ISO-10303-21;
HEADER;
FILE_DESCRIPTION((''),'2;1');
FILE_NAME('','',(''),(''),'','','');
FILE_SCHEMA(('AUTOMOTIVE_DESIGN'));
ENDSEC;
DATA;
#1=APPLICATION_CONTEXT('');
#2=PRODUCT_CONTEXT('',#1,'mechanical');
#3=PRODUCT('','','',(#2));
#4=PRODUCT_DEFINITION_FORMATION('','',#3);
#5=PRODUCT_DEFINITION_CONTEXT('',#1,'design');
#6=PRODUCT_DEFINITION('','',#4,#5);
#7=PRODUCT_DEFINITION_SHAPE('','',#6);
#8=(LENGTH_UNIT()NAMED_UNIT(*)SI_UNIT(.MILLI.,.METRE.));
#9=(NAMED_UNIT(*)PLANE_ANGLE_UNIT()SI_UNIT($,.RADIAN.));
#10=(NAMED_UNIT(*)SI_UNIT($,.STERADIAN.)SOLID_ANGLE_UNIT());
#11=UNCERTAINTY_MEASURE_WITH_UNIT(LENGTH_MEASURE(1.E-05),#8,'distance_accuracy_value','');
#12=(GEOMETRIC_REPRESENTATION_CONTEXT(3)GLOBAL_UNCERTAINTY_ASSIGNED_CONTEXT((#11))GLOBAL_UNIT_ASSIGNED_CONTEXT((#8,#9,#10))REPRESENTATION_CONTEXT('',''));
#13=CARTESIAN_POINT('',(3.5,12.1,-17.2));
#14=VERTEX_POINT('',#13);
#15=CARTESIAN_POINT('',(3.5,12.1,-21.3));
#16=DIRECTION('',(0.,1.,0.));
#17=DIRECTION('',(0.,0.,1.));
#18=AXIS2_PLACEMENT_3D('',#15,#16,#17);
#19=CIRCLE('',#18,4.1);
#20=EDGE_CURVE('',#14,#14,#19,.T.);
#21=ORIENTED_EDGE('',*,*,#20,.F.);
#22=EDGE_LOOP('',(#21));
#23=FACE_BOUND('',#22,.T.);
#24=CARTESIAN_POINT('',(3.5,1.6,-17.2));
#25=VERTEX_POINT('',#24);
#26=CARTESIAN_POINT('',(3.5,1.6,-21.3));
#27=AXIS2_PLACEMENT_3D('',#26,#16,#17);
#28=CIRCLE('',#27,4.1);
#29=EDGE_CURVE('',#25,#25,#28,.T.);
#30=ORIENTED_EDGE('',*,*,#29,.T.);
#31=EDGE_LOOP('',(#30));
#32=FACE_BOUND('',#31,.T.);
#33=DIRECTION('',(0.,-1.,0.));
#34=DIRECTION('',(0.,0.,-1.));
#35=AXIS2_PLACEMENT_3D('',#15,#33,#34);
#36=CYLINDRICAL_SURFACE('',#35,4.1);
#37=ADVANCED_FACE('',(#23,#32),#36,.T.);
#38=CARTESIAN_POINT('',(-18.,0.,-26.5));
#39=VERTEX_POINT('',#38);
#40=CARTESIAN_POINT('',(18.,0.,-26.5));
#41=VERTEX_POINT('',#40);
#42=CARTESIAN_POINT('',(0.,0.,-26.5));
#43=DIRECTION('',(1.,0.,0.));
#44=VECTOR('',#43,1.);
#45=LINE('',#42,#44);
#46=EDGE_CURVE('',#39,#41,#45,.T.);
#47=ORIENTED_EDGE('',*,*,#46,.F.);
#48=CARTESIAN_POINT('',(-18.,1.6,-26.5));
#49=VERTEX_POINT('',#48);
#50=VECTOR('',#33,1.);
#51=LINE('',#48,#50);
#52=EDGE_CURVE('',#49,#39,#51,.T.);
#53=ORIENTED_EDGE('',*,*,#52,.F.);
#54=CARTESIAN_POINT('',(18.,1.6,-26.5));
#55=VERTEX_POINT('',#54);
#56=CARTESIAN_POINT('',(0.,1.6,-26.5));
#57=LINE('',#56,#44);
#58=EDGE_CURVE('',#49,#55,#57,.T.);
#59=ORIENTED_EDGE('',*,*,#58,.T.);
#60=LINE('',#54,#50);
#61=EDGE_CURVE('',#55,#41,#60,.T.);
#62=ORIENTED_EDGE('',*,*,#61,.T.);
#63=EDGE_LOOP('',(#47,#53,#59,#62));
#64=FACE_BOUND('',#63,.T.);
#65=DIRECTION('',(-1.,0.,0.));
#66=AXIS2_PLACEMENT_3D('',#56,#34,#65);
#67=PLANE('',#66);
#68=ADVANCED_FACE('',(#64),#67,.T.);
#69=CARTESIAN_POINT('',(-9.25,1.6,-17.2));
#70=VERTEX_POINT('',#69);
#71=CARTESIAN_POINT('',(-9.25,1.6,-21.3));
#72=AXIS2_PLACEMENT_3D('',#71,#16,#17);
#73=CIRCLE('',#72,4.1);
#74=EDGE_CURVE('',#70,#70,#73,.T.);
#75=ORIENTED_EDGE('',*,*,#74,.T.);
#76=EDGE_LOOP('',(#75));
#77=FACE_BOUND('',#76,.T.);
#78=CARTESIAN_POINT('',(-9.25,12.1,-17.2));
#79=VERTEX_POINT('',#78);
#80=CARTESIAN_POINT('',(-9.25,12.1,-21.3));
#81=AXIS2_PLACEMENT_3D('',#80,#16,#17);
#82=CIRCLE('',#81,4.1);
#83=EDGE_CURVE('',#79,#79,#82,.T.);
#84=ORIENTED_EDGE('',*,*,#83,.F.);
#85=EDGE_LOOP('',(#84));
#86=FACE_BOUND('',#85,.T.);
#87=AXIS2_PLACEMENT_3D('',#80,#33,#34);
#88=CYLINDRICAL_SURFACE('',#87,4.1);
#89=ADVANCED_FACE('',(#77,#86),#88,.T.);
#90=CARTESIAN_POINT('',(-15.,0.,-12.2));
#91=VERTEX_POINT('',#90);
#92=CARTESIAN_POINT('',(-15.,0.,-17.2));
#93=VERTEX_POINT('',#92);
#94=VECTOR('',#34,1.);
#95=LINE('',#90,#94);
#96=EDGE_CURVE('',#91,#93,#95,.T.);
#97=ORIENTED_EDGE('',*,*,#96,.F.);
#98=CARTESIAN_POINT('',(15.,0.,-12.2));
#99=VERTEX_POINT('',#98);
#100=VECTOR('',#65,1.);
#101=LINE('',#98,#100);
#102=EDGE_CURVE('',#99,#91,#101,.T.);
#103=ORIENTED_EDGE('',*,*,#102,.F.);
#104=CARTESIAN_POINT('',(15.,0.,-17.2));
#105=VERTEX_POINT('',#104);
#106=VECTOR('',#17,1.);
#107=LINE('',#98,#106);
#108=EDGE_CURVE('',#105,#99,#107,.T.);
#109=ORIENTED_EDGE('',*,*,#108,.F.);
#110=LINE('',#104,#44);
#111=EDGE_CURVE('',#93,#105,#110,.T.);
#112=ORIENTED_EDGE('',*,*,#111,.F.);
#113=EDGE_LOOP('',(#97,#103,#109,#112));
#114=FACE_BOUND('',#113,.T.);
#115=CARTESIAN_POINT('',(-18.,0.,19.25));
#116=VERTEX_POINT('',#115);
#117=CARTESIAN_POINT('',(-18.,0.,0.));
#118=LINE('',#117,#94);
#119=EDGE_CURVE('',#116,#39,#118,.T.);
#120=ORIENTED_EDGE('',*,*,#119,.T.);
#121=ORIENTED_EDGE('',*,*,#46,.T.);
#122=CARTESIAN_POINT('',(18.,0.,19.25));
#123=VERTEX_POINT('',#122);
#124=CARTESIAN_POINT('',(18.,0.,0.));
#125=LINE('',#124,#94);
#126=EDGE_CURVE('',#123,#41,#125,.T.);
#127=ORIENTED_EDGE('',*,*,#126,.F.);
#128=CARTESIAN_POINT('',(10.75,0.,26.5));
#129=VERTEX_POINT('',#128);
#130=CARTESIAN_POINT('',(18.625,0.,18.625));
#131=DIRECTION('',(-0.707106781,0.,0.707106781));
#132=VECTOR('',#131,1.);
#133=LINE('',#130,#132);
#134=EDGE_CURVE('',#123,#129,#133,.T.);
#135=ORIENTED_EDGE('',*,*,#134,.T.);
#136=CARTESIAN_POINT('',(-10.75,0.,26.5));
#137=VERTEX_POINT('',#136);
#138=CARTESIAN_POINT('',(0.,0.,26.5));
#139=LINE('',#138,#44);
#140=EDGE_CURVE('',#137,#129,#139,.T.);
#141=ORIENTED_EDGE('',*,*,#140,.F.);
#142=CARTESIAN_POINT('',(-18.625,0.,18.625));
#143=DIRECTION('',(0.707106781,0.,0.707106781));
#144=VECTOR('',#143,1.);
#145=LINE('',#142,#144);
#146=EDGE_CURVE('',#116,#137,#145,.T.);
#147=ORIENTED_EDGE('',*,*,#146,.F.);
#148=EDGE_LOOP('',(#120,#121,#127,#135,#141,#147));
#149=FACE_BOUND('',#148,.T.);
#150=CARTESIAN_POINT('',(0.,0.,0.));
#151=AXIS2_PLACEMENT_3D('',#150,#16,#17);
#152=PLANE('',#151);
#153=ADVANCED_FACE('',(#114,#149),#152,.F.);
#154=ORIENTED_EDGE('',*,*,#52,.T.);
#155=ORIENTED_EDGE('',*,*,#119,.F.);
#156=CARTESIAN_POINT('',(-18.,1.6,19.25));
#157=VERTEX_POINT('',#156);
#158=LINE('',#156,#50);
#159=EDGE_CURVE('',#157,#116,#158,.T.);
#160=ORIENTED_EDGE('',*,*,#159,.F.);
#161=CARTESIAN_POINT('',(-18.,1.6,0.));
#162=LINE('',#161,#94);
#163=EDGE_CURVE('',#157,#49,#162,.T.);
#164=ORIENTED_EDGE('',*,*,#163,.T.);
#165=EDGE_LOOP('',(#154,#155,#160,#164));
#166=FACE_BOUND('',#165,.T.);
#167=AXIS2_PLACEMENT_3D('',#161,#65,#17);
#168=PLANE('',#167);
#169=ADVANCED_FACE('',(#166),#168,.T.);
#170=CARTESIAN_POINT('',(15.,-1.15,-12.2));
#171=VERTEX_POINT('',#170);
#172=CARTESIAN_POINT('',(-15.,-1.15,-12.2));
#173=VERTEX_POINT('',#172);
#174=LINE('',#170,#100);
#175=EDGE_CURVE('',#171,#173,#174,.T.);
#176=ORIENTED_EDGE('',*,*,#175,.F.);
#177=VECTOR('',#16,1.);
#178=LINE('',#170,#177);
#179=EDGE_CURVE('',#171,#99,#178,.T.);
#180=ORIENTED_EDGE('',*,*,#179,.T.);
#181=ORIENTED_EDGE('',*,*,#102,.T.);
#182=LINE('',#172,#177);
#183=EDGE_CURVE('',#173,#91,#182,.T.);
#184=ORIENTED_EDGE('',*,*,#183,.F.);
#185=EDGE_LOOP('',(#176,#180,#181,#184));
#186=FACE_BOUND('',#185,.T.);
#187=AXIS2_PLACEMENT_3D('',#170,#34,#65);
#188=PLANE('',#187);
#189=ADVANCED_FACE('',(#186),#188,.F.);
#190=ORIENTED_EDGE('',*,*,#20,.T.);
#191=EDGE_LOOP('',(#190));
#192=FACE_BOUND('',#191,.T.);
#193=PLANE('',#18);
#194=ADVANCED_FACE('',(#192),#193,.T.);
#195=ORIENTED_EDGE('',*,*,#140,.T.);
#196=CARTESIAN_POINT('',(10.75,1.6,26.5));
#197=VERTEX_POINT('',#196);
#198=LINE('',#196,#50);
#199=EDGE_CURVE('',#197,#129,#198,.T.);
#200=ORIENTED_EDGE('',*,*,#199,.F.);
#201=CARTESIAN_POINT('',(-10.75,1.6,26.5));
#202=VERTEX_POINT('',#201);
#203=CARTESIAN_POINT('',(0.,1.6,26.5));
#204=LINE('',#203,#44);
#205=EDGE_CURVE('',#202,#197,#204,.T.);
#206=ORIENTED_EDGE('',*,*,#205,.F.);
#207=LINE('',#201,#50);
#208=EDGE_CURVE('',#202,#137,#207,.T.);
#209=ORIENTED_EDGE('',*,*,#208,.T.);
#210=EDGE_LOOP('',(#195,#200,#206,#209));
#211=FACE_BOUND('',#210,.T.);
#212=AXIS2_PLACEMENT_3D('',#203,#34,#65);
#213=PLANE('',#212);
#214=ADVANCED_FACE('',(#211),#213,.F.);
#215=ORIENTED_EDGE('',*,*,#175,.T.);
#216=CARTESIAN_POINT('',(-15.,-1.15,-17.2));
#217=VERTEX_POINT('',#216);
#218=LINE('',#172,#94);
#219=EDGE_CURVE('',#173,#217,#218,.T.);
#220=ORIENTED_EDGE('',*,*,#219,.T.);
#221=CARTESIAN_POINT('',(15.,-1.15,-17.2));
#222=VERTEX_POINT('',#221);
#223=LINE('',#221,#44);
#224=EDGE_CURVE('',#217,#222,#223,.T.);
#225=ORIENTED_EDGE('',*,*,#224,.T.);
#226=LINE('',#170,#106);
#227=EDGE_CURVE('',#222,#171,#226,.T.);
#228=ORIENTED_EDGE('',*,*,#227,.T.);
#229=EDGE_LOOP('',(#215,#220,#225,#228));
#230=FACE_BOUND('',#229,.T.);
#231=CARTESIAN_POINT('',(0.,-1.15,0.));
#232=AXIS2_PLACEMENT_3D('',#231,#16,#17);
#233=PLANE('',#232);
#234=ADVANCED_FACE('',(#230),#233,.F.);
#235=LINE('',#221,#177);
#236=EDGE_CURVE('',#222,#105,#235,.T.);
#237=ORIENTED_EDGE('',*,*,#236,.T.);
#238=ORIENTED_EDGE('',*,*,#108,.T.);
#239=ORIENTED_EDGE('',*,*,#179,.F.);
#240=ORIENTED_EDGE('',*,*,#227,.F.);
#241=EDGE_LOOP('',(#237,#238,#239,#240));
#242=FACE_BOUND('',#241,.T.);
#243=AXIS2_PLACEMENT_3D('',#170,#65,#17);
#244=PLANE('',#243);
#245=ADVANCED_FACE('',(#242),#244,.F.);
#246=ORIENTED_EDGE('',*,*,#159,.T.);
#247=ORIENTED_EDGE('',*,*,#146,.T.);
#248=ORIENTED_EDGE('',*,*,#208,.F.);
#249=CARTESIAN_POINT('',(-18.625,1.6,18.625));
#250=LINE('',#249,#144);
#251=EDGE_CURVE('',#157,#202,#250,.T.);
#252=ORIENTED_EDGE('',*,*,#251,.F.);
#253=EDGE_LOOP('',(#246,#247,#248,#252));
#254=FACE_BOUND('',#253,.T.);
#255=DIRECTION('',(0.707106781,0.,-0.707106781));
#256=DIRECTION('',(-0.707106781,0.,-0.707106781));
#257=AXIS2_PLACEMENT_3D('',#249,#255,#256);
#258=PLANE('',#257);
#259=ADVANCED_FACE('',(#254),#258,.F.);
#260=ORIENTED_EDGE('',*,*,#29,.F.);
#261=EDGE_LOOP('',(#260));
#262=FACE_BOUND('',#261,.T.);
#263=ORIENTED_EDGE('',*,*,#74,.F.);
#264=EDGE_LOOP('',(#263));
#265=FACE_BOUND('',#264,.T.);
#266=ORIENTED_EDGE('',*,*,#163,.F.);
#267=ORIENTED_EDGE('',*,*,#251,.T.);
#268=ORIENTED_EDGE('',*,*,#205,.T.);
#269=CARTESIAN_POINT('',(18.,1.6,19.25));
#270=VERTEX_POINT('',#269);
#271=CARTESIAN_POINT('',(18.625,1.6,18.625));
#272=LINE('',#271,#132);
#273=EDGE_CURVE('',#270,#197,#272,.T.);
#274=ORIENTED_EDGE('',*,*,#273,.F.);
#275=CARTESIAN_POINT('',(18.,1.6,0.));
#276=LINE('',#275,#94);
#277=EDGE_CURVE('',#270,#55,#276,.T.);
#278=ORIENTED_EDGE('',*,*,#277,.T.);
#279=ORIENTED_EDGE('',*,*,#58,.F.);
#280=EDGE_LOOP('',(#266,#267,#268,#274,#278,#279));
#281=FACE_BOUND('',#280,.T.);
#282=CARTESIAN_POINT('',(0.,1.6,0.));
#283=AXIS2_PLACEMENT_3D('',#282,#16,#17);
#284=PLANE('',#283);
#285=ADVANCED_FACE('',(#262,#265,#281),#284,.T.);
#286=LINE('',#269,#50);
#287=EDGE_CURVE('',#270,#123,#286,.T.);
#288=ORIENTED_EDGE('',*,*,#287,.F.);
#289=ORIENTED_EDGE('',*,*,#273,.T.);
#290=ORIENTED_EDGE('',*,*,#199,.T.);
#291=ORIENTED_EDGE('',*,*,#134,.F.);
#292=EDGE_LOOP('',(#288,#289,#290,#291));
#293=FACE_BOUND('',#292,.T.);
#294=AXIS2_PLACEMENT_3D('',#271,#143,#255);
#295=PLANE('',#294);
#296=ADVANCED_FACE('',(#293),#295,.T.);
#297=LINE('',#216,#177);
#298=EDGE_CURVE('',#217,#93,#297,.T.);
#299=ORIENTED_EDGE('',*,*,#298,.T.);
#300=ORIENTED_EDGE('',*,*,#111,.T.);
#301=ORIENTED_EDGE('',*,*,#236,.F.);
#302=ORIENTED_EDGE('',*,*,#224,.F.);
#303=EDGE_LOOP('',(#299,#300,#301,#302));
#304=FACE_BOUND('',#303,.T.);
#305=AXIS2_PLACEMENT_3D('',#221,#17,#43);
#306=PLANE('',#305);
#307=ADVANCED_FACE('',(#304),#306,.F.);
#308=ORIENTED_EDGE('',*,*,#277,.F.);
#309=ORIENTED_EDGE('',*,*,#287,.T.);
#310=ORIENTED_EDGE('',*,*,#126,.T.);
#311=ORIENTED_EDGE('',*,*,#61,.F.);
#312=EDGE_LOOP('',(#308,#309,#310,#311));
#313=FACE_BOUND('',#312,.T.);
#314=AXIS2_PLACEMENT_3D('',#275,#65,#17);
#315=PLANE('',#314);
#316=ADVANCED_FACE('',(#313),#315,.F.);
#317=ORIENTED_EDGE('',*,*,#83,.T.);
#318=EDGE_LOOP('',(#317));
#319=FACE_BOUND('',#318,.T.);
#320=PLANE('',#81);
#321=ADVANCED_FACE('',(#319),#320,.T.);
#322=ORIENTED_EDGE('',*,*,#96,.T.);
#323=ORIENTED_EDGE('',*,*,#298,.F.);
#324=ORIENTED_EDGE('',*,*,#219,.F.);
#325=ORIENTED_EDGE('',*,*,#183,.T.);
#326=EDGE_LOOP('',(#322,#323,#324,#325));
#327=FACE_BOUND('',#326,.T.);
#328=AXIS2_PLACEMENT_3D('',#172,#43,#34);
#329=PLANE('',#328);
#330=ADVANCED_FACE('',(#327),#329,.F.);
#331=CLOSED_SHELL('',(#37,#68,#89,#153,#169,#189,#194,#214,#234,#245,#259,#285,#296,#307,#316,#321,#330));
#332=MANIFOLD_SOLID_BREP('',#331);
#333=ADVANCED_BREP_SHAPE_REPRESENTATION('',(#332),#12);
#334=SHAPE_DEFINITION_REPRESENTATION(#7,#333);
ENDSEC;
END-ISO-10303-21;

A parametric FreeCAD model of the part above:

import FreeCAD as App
import Part
import Sketcher

V = App.Vector
Q = App.Units.Quantity

doc = App.newDocument("Part")
body = doc.addObject("PartDesign::Body", "Body")

# Sketch on XZ plane
sketch1 = doc.addObject("Sketcher::SketchObject", "Sketch")
body.addObject(sketch1)
sketch1.AttachmentSupport = (doc.XZ_Plane, [""])
sketch1.MapMode = "FlatFace"
sketch1.addGeometry([
    Part.LineSegment(V(-18, -26.5, 0), V(-18, 19.25, 0)),  # 0
    Part.LineSegment(V(-18, 19.25, 0), V(-10.75, 26.5, 0)),  # 1
    Part.LineSegment(V(-10.75, 26.5, 0), V(10.75, 26.5, 0)),  # 2
    Part.LineSegment(V(10.75, 26.5, 0), V(18, 19.25, 0)),  # 3
    Part.LineSegment(V(18, 19.25, 0), V(18, -26.5, 0)),  # 4
    Part.LineSegment(V(18, -26.5, 0), V(-18, -26.5, 0)),  # 5
], False)
sketch1.addConstraint([
    Sketcher.Constraint("Coincident", 0, 2, 1, 1),
    Sketcher.Constraint("Coincident", 1, 2, 2, 1),
    Sketcher.Constraint("Coincident", 2, 2, 3, 1),
    Sketcher.Constraint("Coincident", 3, 2, 4, 1),
    Sketcher.Constraint("Coincident", 4, 2, 5, 1),
    Sketcher.Constraint("Coincident", 5, 2, 0, 1),
    Sketcher.Constraint("Vertical", 0),
    Sketcher.Constraint("Horizontal", 2),
    Sketcher.Constraint("Vertical", 4),
    Sketcher.Constraint("Horizontal", 5),
    Sketcher.Constraint("Symmetric", 0, 2, 3, 2, -2),
    Sketcher.Constraint("Perpendicular", 1, 3),
    Sketcher.Constraint("Equal", 1, 3),
    Sketcher.Constraint("DistanceX", 5, 2, 5, 1, Q("36 mm")),
    Sketcher.Constraint("DistanceX", 2, 1, 2, 2, Q("21.5 mm")),
    Sketcher.Constraint("DistanceY", 4, 2, 2, 2, Q("53 mm")),
    Sketcher.Constraint("DistanceY", -1, 1, 1, 2, Q("26.5 mm")),
])
pad1 = doc.addObject("PartDesign::Pad", "Pad")
body.addObject(pad1)
pad1.Profile = sketch1
pad1.Length = 1.6
pad1.Reversed = True

# Sketch on XZ plane
sketch2 = doc.addObject("Sketcher::SketchObject", "Sketch001")
body.addObject(sketch2)
sketch2.AttachmentSupport = (doc.XZ_Plane, [""])
sketch2.MapMode = "FlatFace"
sketch2.addGeometry([
    Part.LineSegment(V(-15, -12.2, 0), V(-15, -17.2, 0)),
    Part.LineSegment(V(-15, -17.2, 0), V(15, -17.2, 0)),
    Part.LineSegment(V(15, -17.2, 0), V(15, -12.2, 0)),
    Part.LineSegment(V(15, -12.2, 0), V(-15, -12.2, 0)),
], False)
sketch2.addConstraint([
    Sketcher.Constraint("Coincident", 0, 2, 1, 1),
    Sketcher.Constraint("Coincident", 1, 2, 2, 1),
    Sketcher.Constraint("Coincident", 2, 2, 3, 1),
    Sketcher.Constraint("Coincident", 3, 2, 0, 1),
    Sketcher.Constraint("Vertical", 0),
    Sketcher.Constraint("Horizontal", 1),
    Sketcher.Constraint("Vertical", 2),
    Sketcher.Constraint("Horizontal", 3),
    Sketcher.Constraint("DistanceX", 1, 1, 1, 2, Q("30 mm")),
    Sketcher.Constraint("DistanceY", 0, 2, 0, 1, Q("5 mm")),
    Sketcher.Constraint("DistanceX", 0, 2, -1, 1, Q("15 mm")),
    Sketcher.Constraint("DistanceY", 0, 2, -1, 1, Q("17.2 mm")),
])
pad2 = doc.addObject("PartDesign::Pad", "Pad001")
body.addObject(pad2)
pad2.Profile = sketch2
pad2.Length = 1.15

# Sketch on XZ plane
sketch3 = doc.addObject("Sketcher::SketchObject", "Sketch002")
body.addObject(sketch3)
sketch3.AttachmentSupport = (doc.XZ_Plane, [""])
sketch3.MapMode = "FlatFace"
sketch3.AttachmentOffset = App.Placement(V(0, 0, -1.6), App.Rotation())
sketch3.addGeometry([
    Part.Circle(V(-9.25, -21.3, 0), V(0, 0, 1), 4.1),
    Part.Circle(V(3.5, -21.3, 0), V(0, 0, 1), 4.1),
], False)
sketch3.addConstraint([
    Sketcher.Constraint("Equal", 0, 1),
    Sketcher.Constraint("Horizontal", 0, 3, 1, 3),
    Sketcher.Constraint("Diameter", 0, Q("8.2 mm")),
    Sketcher.Constraint("DistanceY", 0, 3, -1, 1, Q("21.3 mm")),
    Sketcher.Constraint("DistanceX", -1, 1, 1, 3, Q("3.5 mm")),
    Sketcher.Constraint("DistanceX", 0, 3, -1, 1, Q("9.25 mm")),
])
pad3 = doc.addObject("PartDesign::Pad", "Pad002")
body.addObject(pad3)
pad3.Profile = sketch3
pad3.Length = 10.5
pad3.Reversed = True

doc.recompute()
